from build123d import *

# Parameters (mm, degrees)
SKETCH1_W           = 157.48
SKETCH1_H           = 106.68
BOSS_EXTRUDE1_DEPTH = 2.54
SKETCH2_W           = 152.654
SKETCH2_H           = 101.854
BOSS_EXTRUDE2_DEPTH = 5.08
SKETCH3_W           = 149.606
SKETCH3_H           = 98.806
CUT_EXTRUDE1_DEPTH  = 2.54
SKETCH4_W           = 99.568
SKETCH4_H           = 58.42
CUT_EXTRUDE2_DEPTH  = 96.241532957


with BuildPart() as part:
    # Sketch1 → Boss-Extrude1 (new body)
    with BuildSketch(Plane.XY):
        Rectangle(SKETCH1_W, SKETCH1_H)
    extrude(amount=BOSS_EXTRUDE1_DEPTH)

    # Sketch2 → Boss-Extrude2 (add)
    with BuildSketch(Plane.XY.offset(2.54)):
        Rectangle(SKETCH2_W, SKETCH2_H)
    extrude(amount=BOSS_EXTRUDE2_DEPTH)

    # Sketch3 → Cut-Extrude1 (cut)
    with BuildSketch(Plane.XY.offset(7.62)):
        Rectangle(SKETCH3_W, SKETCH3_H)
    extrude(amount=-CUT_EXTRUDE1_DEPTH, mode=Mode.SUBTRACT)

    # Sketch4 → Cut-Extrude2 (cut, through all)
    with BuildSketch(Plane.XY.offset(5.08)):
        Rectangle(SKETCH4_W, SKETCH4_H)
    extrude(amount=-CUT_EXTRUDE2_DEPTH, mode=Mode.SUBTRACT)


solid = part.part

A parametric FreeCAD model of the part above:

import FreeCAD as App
import Part
import Sketcher
from FreeCAD import Vector
Q = App.Units.Quantity


def add_polygon(sketch, points):
    """Adds a closed chain of lines whose ends are joined by coincident constraints."""
    first, n = sketch.GeometryCount, len(points)
    for a, b in zip(points, points[1:] + points[:1]):
        sketch.addGeometry(Part.LineSegment(App.Vector(*a, 0), App.Vector(*b, 0)), False)
    for i in range(n):
        sketch.addConstraint(Sketcher.Constraint("Coincident", first + i, 2, first + (i + 1) % n, 1))

doc = App.newDocument("Part")
params = doc.addObject("Spreadsheet::Sheet", "Params")
for row, (alias, value) in enumerate([
    ("sketch1_width", "6.2 in"),
    ("sketch1_height", "4.2 in"),
    ("pad1_length", "0.1 in"),
    ("sketch2_width", "6.01 in"),
    ("sketch2_height", "4.01 in"),
    ("pad2_length", "0.2 in"),
    ("sketch3_width", "5.89 in"),
    ("sketch3_height", "3.89 in"),
    ("pocket1_length", "0.1 in"),
    ("sketch4_height", "2.3 in"),
    ("sketch4_width", "3.92 in"),
], start=1):
    params.set(f"A{row}", alias)
    params.set(f"B{row}", "=" + value)
    params.setAlias(f"B{row}", alias)

body = doc.addObject("PartDesign::Body", "Body")

# Sketch on XY plane
sketch1 = body.newObject("Sketcher::SketchObject", "Sketch")
sketch1.AttachmentSupport = (doc.getObject("XY_Plane"), [""])
sketch1.MapMode = "FlatFace"
add_polygon(sketch1, [(-79, 53), (-79, -53), (79, -53), (79, 53)])  # lines 0-3
sketch1.addConstraint([
    Sketcher.Constraint("Vertical", 0),
    Sketcher.Constraint("Horizontal", 1),
    Sketcher.Constraint("Vertical", 2),
    Sketcher.Constraint("Horizontal", 3),
    Sketcher.Constraint("Symmetric", 0, 2, 2, 2, -1, 1),
    Sketcher.Constraint("DistanceX", 1, 1, 1, 2, Q("6.2 in")),
    Sketcher.Constraint("DistanceY", 0, 2, 0, 1, Q("4.2 in")),
])
sketch1.setExpression("Constraints[9]", "Params.sketch1_width")
sketch1.setExpression("Constraints[10]", "Params.sketch1_height")
pad1 = body.newObject("PartDesign::Pad", "Pad")
pad1.Profile = sketch1
pad1.setExpression("Length", "Params.pad1_length")

# Sketch on XY plane
sketch2 = body.newObject("Sketcher::SketchObject", "Sketch001")
sketch2.AttachmentSupport = (doc.getObject("XY_Plane"), [""])
sketch2.MapMode = "FlatFace"
sketch2.AttachmentOffset = App.Placement(Vector(0, 0, 0.1 * 25.4), App.Rotation())
add_polygon(sketch2, [(-76, 51), (-76, -51), (76, -51), (76, 51)])  # lines 0-3
sketch2.addConstraint([
    Sketcher.Constraint("Vertical", 0),
    Sketcher.Constraint("Horizontal", 1),
    Sketcher.Constraint("Vertical", 2),
    Sketcher.Constraint("Horizontal", 3),
    Sketcher.Constraint("Symmetric", 0, 2, 2, 2, -1, 1),
    Sketcher.Constraint("DistanceX", 1, 1, 1, 2, Q("6.01 in")),
    Sketcher.Constraint("DistanceY", 0, 2, 0, 1, Q("4.01 in")),
])
sketch2.setExpression("Constraints[9]", "Params.sketch2_width")
sketch2.setExpression("Constraints[10]", "Params.sketch2_height")
pad2 = body.newObject("PartDesign::Pad", "Pad001")
pad2.Profile = sketch2
pad2.setExpression("Length", "Params.pad2_length")

# Sketch on XY plane
sketch3 = body.newObject("Sketcher::SketchObject", "Sketch002")
sketch3.AttachmentSupport = (doc.getObject("XY_Plane"), [""])
sketch3.MapMode = "FlatFace"
sketch3.AttachmentOffset = App.Placement(Vector(0, 0, 0.3 * 25.4), App.Rotation())
add_polygon(sketch3, [(-75, 49), (-75, -49), (75, -49), (75, 49)])  # lines 0-3
sketch3.addConstraint([
    Sketcher.Constraint("Vertical", 0),
    Sketcher.Constraint("Horizontal", 1),
    Sketcher.Constraint("Vertical", 2),
    Sketcher.Constraint("Horizontal", 3),
    Sketcher.Constraint("Symmetric", 0, 2, 2, 2, -1, 1),
    Sketcher.Constraint("DistanceX", 1, 1, 1, 2, Q("5.89 in")),
    Sketcher.Constraint("DistanceY", 0, 2, 0, 1, Q("3.89 in")),
])
sketch3.setExpression("Constraints[9]", "Params.sketch3_width")
sketch3.setExpression("Constraints[10]", "Params.sketch3_height")
pocket1 = body.newObject("PartDesign::Pocket", "Pocket")
pocket1.Profile = sketch3
pocket1.setExpression("Length", "Params.pocket1_length")

# Sketch on XY plane
sketch4 = body.newObject("Sketcher::SketchObject", "Sketch003")
sketch4.AttachmentSupport = (doc.getObject("XY_Plane"), [""])
sketch4.MapMode = "FlatFace"
sketch4.AttachmentOffset = App.Placement(Vector(0, 0, 0.2 * 25.4), App.Rotation())
add_polygon(sketch4, [(-50, 29), (-50, -29), (50, -29), (50, 29)])  # lines 0-3
sketch4.addConstraint([
    Sketcher.Constraint("Vertical", 0),
    Sketcher.Constraint("Horizontal", 1),
    Sketcher.Constraint("Vertical", 2),
    Sketcher.Constraint("Horizontal", 3),
    Sketcher.Constraint("Symmetric", 0, 2, 2, 2, -1, 1),
    Sketcher.Constraint("DistanceY", 0, 2, 0, 1, Q("2.3 in")),
    Sketcher.Constraint("DistanceX", 1, 1, 1, 2, Q("3.92 in")),
])
sketch4.setExpression("Constraints[9]", "Params.sketch4_height")
sketch4.setExpression("Constraints[10]", "Params.sketch4_width")
pocket2 = body.newObject("PartDesign::Pocket", "Pocket001")
pocket2.Profile = sketch4
pocket2.Type = "ThroughAll"

doc.recompute()
